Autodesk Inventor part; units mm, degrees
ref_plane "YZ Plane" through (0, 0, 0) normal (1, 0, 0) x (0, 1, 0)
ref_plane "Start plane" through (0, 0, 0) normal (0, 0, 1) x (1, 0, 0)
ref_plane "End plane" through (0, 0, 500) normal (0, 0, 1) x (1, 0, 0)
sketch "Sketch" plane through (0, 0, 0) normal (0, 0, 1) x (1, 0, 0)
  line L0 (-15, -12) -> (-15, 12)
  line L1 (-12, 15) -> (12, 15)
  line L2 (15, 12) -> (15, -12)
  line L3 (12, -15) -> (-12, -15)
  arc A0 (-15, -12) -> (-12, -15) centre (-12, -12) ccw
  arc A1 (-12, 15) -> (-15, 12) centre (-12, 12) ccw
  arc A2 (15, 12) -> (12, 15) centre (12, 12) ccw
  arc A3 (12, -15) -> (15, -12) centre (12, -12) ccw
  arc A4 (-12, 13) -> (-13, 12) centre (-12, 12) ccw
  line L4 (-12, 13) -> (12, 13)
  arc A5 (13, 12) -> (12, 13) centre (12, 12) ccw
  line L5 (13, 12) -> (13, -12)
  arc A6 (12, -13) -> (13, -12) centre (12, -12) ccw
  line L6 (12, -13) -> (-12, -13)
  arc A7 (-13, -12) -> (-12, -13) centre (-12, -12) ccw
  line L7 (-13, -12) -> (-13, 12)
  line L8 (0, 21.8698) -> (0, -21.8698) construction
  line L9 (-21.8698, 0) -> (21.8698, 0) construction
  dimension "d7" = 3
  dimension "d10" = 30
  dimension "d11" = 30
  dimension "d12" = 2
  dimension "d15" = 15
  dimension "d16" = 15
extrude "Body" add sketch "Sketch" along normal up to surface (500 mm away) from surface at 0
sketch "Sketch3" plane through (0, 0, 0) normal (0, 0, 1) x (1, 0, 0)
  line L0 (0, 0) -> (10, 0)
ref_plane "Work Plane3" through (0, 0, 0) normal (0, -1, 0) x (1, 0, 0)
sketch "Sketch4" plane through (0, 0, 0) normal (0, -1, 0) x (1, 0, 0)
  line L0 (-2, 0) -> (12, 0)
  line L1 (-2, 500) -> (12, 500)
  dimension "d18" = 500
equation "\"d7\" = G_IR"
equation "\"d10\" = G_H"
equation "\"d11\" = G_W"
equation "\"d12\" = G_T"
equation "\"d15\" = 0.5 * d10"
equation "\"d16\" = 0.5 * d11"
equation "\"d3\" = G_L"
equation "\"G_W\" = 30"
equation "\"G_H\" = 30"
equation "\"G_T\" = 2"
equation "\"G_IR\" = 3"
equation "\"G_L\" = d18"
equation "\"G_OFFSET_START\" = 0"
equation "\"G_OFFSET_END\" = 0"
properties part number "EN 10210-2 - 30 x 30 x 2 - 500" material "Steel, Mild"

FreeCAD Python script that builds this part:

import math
import FreeCAD as App
import Part
import Sketcher
from FreeCAD import Vector
Q = App.Units.Quantity

doc = App.newDocument("Part")
body = doc.addObject("PartDesign::Body", "Body")

# Sketch on XY plane
sketch1 = body.newObject("Sketcher::SketchObject", "Sketch")
sketch1.AttachmentSupport = (doc.getObject("XY_Plane"), [""])
sketch1.MapMode = "FlatFace"
sketch1.addGeometry([
    Part.LineSegment(Vector(-15, 12, 0), Vector(-15, -12, 0)),  # 0
    Part.ArcOfCircle(Part.Circle(Vector(-12, -12, 0), Vector(0, 0, 1), 3), math.radians(180), math.radians(270)),  # 1
    Part.LineSegment(Vector(-12, -15, 0), Vector(12, -15, 0)),  # 2
    Part.ArcOfCircle(Part.Circle(Vector(12, -12, 0), Vector(0, 0, 1), 3), math.radians(-90), math.radians(0)),  # 3
    Part.LineSegment(Vector(15, -12, 0), Vector(15, 12, 0)),  # 4
    Part.ArcOfCircle(Part.Circle(Vector(12, 12, 0), Vector(0, 0, 1), 3), math.radians(0), math.radians(90)),  # 5
    Part.LineSegment(Vector(12, 15, 0), Vector(-12, 15, 0)),  # 6
    Part.ArcOfCircle(Part.Circle(Vector(-12, 12, 0), Vector(0, 0, 1), 3), math.radians(90), math.radians(180)),  # 7
    Part.ArcOfCircle(Part.Circle(Vector(-12, 12, 0), Vector(0, 0, 1), 1), math.radians(90), math.radians(180)),  # 8
    Part.LineSegment(Vector(-12, 13, 0), Vector(12, 13, 0)),  # 9
    Part.ArcOfCircle(Part.Circle(Vector(12, 12, 0), Vector(0, 0, 1), 1), math.radians(0), math.radians(90)),  # 10
    Part.LineSegment(Vector(13, 12, 0), Vector(13, -12, 0)),  # 11
    Part.ArcOfCircle(Part.Circle(Vector(12, -12, 0), Vector(0, 0, 1), 1), math.radians(-90), math.radians(0)),  # 12
    Part.LineSegment(Vector(12, -13, 0), Vector(-12, -13, 0)),  # 13
    Part.ArcOfCircle(Part.Circle(Vector(-12, -12, 0), Vector(0, 0, 1), 1), math.radians(180), math.radians(270)),  # 14
    Part.LineSegment(Vector(-13, -12, 0), Vector(-13, 12, 0)),  # 15
], False)
sketch1.addConstraint([
    Sketcher.Constraint("Tangent", 0, 2, 1, 1),
    Sketcher.Constraint("Tangent", 1, 2, 2, 1),
    Sketcher.Constraint("Tangent", 2, 2, 3, 1),
    Sketcher.Constraint("Tangent", 3, 2, 4, 1),
    Sketcher.Constraint("Tangent", 4, 2, 5, 1),
    Sketcher.Constraint("Tangent", 5, 2, 6, 1),
    Sketcher.Constraint("Tangent", 6, 2, 7, 1),
    Sketcher.Constraint("Tangent", 7, 2, 0, 1),
    Sketcher.Constraint("Tangent", 8, 1, 9, 1),
    Sketcher.Constraint("Tangent", 9, 2, 10, 2),
    Sketcher.Constraint("Tangent", 10, 1, 11, 1),
    Sketcher.Constraint("Tangent", 11, 2, 12, 2),
    Sketcher.Constraint("Tangent", 12, 1, 13, 1),
    Sketcher.Constraint("Tangent", 13, 2, 14, 2),
    Sketcher.Constraint("Tangent", 14, 1, 15, 1),
    Sketcher.Constraint("Tangent", 15, 2, 8, 2),
    Sketcher.Constraint("Vertical", 0),
    Sketcher.Constraint("Horizontal", 2),
    Sketcher.Constraint("Vertical", 4),
    Sketcher.Constraint("Horizontal", 6),
    Sketcher.Constraint("Horizontal", 9),
    Sketcher.Constraint("Vertical", 11),
    Sketcher.Constraint("Horizontal", 13),
    Sketcher.Constraint("Vertical", 15),
    Sketcher.Constraint("Coincident", 8, 3, 7, 3),
    Sketcher.Constraint("Coincident", 10, 3, 5, 3),
    Sketcher.Constraint("Coincident", 12, 3, 3, 3),
    Sketcher.Constraint("Equal", 1, 3),
    Sketcher.Constraint("Equal", 3, 5),
    Sketcher.Constraint("Equal", 5, 7),
    Sketcher.Constraint("Equal", 12, 14),
    Sketcher.Constraint("Symmetric", 1, 3, 5, 3, -1, 1),
    Sketcher.Constraint("Equal", 13, 0),
    Sketcher.Constraint("Radius", 1, Q("3 mm")),
    Sketcher.Constraint("Radius", 8, Q("1 mm")),
    Sketcher.Constraint("DistanceX", 0, 2, -1, 1, Q("15 mm")),
])
pad1 = body.newObject("PartDesign::Pad", "Pad")
pad1.Profile = sketch1
pad1.Length = 500

doc.recompute()
